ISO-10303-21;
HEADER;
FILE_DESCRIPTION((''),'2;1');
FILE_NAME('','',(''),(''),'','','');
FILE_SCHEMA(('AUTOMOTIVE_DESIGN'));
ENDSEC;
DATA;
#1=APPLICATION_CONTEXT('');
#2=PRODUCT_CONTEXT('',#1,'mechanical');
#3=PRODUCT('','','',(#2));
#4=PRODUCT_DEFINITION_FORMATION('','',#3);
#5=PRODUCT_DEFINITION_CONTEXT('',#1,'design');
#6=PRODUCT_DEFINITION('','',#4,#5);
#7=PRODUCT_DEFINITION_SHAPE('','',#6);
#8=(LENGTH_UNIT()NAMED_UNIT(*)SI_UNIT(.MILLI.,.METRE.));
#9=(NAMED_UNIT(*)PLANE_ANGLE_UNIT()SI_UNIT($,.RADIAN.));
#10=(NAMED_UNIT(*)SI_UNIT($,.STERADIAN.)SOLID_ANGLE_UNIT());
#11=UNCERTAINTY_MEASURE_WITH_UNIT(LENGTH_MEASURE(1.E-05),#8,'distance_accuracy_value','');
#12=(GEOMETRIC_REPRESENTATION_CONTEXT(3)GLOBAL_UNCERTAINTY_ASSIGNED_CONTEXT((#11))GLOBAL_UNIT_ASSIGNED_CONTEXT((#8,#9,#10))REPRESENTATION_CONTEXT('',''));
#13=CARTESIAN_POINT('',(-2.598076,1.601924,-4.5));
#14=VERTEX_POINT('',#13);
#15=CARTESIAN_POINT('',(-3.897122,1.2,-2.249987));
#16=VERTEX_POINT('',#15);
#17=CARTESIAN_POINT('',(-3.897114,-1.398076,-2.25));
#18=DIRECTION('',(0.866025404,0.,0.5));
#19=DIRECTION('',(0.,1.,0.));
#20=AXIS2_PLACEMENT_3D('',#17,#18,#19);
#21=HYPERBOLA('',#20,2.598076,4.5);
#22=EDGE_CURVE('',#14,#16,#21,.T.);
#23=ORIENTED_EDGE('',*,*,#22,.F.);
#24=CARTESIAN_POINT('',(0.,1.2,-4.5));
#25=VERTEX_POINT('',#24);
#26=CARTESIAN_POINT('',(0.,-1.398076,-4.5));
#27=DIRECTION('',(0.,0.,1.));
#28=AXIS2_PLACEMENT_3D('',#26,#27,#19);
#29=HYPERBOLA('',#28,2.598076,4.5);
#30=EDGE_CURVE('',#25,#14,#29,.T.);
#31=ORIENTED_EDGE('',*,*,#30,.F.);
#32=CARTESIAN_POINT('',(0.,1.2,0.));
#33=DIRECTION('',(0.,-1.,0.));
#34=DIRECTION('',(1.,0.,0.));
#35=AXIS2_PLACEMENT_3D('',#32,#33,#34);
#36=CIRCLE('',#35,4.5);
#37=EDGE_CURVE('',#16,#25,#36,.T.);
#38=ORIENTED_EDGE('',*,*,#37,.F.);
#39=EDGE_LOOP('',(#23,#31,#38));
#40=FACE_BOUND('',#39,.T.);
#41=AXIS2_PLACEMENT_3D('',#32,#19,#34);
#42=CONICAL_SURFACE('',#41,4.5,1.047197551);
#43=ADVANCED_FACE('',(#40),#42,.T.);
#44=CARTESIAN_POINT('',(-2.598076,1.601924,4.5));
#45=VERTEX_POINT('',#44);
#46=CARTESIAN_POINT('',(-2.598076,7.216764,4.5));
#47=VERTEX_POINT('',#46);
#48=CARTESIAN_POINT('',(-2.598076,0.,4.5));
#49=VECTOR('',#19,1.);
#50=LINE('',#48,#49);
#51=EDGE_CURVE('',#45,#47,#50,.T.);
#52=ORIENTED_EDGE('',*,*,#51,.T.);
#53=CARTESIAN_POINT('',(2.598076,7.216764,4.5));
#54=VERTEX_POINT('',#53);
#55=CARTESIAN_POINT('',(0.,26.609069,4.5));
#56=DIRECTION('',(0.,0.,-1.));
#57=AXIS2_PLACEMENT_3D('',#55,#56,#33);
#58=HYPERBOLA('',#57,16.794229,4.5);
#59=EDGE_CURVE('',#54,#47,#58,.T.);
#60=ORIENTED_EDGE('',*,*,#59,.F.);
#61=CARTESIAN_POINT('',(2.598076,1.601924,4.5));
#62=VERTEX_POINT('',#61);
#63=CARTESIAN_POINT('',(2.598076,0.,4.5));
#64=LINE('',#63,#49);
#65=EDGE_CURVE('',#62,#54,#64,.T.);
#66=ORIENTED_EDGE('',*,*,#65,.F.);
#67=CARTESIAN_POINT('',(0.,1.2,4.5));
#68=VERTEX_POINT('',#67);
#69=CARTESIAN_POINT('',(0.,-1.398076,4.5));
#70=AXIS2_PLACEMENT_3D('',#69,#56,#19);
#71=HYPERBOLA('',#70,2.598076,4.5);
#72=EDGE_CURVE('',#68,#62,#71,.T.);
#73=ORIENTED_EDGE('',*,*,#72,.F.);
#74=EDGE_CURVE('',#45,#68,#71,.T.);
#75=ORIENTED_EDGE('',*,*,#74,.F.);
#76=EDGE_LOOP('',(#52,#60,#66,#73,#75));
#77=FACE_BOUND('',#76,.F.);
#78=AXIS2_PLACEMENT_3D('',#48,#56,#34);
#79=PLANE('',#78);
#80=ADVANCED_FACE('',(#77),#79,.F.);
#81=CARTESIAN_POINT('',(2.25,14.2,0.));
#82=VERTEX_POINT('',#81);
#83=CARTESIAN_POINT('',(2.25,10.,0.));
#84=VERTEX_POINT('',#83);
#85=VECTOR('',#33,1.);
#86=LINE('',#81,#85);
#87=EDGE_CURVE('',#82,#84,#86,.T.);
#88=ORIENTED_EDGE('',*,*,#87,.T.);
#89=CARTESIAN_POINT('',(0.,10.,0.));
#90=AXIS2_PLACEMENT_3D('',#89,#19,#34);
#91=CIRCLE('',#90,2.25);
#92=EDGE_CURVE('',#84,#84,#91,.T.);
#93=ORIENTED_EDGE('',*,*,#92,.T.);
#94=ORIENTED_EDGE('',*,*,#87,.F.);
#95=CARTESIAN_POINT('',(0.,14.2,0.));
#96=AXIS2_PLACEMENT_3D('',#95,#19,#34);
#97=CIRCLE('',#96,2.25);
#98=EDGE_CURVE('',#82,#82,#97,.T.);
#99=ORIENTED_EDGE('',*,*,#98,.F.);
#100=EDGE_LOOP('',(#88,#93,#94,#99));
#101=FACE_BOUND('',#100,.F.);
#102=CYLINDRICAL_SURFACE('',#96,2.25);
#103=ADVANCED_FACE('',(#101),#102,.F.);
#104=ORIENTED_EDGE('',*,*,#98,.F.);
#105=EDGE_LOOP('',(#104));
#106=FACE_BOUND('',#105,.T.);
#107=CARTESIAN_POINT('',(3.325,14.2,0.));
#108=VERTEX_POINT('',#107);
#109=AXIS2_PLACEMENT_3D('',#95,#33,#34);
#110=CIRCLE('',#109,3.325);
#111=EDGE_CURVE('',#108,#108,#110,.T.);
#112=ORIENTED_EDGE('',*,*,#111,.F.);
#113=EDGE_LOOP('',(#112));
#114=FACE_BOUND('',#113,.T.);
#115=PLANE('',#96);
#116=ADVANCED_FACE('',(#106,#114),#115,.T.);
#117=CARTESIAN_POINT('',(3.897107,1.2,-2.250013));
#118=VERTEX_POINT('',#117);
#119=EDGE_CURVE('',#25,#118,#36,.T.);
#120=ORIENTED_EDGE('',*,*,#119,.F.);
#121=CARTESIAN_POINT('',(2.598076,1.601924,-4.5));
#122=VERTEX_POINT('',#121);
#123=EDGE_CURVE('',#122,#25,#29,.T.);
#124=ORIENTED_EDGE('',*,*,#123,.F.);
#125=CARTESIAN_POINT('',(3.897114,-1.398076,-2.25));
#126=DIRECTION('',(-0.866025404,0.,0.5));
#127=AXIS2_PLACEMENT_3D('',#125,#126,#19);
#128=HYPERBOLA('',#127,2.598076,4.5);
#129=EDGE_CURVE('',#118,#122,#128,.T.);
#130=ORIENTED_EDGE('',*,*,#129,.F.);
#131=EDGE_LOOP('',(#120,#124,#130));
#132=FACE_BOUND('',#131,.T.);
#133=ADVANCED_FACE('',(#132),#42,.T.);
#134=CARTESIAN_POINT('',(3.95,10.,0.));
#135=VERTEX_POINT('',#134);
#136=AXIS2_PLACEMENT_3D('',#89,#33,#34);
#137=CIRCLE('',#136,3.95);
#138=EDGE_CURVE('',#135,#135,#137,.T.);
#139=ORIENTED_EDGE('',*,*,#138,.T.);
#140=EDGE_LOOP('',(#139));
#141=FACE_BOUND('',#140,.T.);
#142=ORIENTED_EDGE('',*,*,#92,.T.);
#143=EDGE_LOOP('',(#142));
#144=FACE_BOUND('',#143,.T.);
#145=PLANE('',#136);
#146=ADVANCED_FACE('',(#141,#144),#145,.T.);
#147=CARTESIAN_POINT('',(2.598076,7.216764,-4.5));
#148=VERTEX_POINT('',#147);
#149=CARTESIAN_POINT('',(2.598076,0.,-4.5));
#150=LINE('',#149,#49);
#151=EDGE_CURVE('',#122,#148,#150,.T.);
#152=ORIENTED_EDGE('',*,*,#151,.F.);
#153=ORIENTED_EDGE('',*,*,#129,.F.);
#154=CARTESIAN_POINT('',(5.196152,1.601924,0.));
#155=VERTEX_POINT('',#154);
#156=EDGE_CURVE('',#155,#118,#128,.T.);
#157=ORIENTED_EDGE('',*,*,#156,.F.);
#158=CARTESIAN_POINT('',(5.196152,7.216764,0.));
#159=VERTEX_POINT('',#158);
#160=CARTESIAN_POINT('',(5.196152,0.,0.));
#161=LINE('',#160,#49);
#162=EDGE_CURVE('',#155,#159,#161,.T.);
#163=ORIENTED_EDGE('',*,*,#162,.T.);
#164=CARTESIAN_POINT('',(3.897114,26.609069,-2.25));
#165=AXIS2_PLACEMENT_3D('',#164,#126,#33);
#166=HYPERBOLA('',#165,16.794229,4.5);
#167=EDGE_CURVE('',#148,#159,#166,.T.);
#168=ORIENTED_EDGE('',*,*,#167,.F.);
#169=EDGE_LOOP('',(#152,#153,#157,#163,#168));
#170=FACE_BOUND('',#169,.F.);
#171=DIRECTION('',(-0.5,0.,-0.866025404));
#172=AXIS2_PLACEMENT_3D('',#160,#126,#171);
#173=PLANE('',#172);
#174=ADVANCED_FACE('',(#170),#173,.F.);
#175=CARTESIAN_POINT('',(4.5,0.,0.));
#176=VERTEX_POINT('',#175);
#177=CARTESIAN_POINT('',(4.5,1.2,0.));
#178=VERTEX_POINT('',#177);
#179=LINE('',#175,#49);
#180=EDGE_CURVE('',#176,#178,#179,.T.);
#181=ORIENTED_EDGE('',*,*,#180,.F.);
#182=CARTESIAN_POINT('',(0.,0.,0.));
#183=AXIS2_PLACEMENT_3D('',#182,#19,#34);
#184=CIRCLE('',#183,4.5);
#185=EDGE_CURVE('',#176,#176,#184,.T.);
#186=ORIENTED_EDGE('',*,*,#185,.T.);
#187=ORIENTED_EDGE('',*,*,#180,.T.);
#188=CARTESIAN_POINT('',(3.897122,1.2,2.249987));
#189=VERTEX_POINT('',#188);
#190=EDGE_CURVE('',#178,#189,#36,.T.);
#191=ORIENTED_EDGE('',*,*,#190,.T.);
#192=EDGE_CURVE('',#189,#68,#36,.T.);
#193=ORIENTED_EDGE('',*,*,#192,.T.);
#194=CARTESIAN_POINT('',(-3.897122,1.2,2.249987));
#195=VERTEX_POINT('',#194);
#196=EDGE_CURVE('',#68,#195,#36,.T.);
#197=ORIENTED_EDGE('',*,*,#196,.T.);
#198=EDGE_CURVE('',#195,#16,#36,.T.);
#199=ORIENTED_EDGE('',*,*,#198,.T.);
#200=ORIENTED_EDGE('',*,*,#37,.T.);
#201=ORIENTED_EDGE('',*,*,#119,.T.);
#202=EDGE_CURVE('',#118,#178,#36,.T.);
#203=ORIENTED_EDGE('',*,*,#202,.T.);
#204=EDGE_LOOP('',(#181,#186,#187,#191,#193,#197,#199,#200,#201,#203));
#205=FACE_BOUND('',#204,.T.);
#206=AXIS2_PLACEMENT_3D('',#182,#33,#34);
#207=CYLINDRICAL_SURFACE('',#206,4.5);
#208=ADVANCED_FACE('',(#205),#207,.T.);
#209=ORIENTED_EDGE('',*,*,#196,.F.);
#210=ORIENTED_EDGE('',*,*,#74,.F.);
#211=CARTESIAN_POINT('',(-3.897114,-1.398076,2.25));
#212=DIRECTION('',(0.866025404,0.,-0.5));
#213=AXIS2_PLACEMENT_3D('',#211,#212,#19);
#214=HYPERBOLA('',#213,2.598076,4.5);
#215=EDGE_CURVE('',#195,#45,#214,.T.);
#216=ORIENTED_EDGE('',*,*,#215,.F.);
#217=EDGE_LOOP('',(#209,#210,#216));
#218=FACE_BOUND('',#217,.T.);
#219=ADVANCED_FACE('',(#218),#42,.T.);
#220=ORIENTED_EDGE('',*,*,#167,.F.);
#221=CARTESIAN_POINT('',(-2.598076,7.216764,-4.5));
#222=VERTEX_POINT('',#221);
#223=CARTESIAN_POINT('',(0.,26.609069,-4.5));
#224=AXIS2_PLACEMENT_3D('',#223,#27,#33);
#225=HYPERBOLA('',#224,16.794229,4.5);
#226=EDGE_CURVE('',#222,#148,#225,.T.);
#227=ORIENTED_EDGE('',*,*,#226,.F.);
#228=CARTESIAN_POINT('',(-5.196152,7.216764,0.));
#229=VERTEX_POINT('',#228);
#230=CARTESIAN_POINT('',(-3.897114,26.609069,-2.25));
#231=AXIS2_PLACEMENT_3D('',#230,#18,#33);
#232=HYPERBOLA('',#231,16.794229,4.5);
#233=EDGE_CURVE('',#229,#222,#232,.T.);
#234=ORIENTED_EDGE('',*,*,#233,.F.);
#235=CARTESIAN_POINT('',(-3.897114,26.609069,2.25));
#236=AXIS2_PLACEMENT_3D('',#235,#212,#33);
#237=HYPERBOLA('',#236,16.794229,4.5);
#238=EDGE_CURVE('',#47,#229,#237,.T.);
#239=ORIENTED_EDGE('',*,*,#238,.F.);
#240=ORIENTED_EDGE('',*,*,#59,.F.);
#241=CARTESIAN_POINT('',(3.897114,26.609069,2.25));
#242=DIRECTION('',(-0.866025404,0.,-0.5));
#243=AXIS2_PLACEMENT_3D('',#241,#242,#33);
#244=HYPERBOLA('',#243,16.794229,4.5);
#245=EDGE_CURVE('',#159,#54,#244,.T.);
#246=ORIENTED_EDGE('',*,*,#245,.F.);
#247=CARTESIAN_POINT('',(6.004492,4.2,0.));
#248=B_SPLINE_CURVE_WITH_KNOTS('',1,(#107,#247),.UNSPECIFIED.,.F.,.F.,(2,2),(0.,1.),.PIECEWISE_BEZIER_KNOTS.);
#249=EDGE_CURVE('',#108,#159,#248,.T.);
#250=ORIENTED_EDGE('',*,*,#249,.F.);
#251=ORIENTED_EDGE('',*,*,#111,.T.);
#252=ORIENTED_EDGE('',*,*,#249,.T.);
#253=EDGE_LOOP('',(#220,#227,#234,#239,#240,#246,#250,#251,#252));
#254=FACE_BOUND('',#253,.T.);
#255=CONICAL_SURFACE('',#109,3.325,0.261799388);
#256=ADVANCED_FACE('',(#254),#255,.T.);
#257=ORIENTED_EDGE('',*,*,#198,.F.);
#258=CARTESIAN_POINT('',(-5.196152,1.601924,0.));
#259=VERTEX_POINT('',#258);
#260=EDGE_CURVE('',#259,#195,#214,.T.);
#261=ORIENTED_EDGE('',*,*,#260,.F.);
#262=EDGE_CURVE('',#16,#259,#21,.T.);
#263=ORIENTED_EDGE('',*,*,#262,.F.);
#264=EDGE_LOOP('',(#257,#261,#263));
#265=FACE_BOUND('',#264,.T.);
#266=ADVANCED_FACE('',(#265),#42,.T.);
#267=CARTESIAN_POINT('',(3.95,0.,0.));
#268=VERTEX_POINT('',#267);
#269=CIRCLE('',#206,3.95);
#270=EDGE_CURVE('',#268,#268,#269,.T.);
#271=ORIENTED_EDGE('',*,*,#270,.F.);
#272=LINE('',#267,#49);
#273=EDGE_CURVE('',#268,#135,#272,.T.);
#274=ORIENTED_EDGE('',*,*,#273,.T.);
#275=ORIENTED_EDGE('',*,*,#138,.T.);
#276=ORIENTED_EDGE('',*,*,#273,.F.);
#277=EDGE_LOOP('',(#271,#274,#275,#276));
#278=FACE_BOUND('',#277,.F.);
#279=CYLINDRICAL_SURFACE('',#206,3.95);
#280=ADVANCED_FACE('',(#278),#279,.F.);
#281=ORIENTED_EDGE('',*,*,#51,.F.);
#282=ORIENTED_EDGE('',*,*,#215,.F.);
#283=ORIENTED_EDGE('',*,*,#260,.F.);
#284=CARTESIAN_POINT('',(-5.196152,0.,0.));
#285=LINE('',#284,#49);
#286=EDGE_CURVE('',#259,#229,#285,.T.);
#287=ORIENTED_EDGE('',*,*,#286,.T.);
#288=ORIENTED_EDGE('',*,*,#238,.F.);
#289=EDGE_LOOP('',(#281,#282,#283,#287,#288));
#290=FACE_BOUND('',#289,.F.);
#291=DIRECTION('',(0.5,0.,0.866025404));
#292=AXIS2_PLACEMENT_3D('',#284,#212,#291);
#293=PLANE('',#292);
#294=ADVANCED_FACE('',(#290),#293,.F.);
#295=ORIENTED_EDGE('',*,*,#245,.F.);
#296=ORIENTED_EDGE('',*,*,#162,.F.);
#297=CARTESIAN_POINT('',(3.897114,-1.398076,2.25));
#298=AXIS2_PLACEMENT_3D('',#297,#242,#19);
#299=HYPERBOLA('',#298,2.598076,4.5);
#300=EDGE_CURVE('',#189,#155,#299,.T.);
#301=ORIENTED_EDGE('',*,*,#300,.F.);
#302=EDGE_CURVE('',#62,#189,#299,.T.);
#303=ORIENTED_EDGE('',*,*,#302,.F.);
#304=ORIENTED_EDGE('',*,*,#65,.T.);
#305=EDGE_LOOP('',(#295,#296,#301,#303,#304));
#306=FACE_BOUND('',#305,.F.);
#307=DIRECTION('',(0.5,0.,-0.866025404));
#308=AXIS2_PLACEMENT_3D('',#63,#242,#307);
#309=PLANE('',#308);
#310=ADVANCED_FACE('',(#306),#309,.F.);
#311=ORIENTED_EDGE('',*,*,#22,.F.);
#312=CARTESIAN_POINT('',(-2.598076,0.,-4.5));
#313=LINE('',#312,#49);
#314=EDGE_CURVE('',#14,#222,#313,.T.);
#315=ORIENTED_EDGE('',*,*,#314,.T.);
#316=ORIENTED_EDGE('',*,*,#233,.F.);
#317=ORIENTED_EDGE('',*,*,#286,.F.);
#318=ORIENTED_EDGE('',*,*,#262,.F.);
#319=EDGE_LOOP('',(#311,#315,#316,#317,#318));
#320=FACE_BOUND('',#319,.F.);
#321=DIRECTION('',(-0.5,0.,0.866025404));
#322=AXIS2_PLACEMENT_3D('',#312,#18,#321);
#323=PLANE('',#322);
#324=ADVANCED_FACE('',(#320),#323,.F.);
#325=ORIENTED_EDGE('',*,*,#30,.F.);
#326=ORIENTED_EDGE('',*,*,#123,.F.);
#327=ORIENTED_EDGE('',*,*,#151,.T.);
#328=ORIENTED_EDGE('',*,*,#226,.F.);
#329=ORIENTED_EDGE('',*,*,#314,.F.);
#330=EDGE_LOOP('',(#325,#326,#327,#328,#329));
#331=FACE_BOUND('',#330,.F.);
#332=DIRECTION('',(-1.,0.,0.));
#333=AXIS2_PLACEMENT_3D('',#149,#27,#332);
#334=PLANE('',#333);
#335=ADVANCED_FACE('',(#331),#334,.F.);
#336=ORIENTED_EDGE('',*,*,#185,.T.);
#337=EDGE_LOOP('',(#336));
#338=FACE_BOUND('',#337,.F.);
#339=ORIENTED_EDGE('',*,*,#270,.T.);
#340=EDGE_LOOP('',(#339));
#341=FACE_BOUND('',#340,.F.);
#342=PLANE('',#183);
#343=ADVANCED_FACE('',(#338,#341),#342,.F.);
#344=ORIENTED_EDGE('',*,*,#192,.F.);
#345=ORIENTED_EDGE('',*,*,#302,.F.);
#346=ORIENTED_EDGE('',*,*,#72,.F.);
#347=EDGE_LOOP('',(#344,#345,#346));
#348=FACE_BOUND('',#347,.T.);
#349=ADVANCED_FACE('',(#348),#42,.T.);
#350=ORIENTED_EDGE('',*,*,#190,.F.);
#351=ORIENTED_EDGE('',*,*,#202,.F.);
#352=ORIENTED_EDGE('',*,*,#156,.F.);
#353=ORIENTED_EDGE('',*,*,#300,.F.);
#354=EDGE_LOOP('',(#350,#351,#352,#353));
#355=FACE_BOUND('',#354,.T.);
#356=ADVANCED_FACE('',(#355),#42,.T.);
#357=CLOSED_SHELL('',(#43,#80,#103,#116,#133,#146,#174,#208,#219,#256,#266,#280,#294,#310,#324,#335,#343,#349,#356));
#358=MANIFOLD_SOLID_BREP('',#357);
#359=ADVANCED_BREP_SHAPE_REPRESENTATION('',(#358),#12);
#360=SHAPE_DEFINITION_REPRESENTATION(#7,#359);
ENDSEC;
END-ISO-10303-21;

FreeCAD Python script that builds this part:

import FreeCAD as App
import Part
import Sketcher

V = App.Vector
Q = App.Units.Quantity


def add_polygon(sketch, points):
    """Adds a closed chain of lines whose ends are joined by coincident constraints."""
    first, n = sketch.GeometryCount, len(points)
    for a, b in zip(points, points[1:] + points[:1]):
        sketch.addGeometry(Part.LineSegment(App.Vector(*a, 0), App.Vector(*b, 0)), False)
    for i in range(n):
        sketch.addConstraint(Sketcher.Constraint("Coincident", first + i, 2, first + (i + 1) % n, 1))

doc = App.newDocument("Part")
body = doc.addObject("PartDesign::Body", "Body")

# Sketch on XZ plane
sketch1 = body.newObject("Sketcher::SketchObject", "Sketch")
sketch1.AttachmentSupport = (doc.getObject("XZ_Plane"), [""])
sketch1.MapMode = "FlatFace"
add_polygon(sketch1, [(-3, 4), (3, 4), (5, 0), (3, -4), (-3, -4), (-5, 0)])  # lines 0-5
sketch1.addConstraint([
    Sketcher.Constraint("Horizontal", 0),
    Sketcher.Constraint("Horizontal", 3),
    Sketcher.Constraint("Symmetric", 0, 2, 3, 2, -1, 1),
    Sketcher.Constraint("Symmetric", 1, 2, 4, 2, -1, 1),
    Sketcher.Constraint("PointOnObject", 1, 2, -1),
    Sketcher.Constraint("Parallel", 2, 5),
    Sketcher.Constraint("Vertical", 0, 2, 2, 2),
    Sketcher.Constraint("Angle", 1, Q("-60 deg")),
    Sketcher.Constraint("DistanceY", 2, 2, 0, 2, Q("9 mm")),
    Sketcher.Constraint("DistanceX", 0, 1, 0, 2, Q("5.196152 mm")),
])
pad1 = body.newObject("PartDesign::Pad", "Pad")
pad1.Profile = sketch1
pad1.Length = 14.2
pad1.Reversed = True

# Sketch on XZ plane
sketch2 = body.newObject("Sketcher::SketchObject", "Sketch001")
sketch2.AttachmentSupport = (doc.getObject("XZ_Plane"), [""])
sketch2.MapMode = "FlatFace"
sketch2.AttachmentOffset = App.Placement(V(0, 0, -14.2), App.Rotation())
sketch2.addGeometry(Part.Circle(V(0, 0, 0), V(0, 0, 1), 2.2), False)
sketch2.addConstraint([
    Sketcher.Constraint("Coincident", 0, 3, -1, 1),
    Sketcher.Constraint("Diameter", 0, Q("4.5 mm")),
])
pocket1 = body.newObject("PartDesign::Pocket", "Pocket")
pocket1.Profile = sketch2
pocket1.Type = "ThroughAll"
pocket1.Reversed = True

# Sketch on XZ plane
sketch3 = body.newObject("Sketcher::SketchObject", "Sketch002")
sketch3.AttachmentSupport = (doc.getObject("XZ_Plane"), [""])
sketch3.MapMode = "FlatFace"
sketch3.addGeometry(Part.Circle(V(0, 0, 0), V(0, 0, 1), 4), False)
sketch3.addConstraint([
    Sketcher.Constraint("Coincident", 0, 3, -1, 1),
    Sketcher.Constraint("Diameter", 0, Q("7.9 mm")),
])
pocket2 = body.newObject("PartDesign::Pocket", "Pocket001")
pocket2.Profile = sketch3
pocket2.Length = 10

# Sketch on XZ plane
sketch4 = body.newObject("Sketcher::SketchObject", "Sketch003")
sketch4.AttachmentSupport = (doc.getObject("XZ_Plane"), [""])
sketch4.MapMode = "FlatFace"
sketch4.AttachmentOffset = App.Placement(V(0, 0, -14.2), App.Rotation())
add_polygon(sketch4, [(-10.9, -10.2), (-10.9, 10.2), (10.9, 10.2), (10.9, -10.2)])  # lines 0-3
sketch4.addGeometry(Part.Circle(V(0, 0, 0), V(0, 0, 1), 3.3), False)  # 4
sketch4.addConstraint([
    Sketcher.Constraint("Vertical", 0),
    Sketcher.Constraint("Horizontal", 1),
    Sketcher.Constraint("Vertical", 2),
    Sketcher.Constraint("Horizontal", 3),
    Sketcher.Constraint("Coincident", 4, 3, -1, 1),
    Sketcher.Constraint("Symmetric", 0, 2, 2, 2, -1, 1),
    Sketcher.Constraint("Diameter", 4, Q("6.65 mm")),
    Sketcher.Constraint("DistanceX", 1, 1, 1, 2, Q("21.704 mm")),
    Sketcher.Constraint("DistanceY", 0, 1, 0, 2, Q("20.312 mm")),
])
pocket3 = body.newObject("PartDesign::Pocket", "Pocket002")
pocket3.Profile = sketch4
pocket3.Length = 10
pocket3.Reversed = True
pocket3.TaperAngle = 15

# Sketch on XZ plane
sketch5 = body.newObject("Sketcher::SketchObject", "Sketch004")
sketch5.AttachmentSupport = (doc.getObject("XZ_Plane"), [""])
sketch5.MapMode = "FlatFace"
add_polygon(sketch5, [(-8.2, 7.5), (-8.2, -7.5), (8.2, -7.5), (8.2, 7.5)])  # lines 0-3
sketch5.addGeometry(Part.Circle(V(0, 0, 0), V(0, 0, 1), 4.5), False)  # 4
sketch5.addConstraint([
    Sketcher.Constraint("Vertical", 0),
    Sketcher.Constraint("Horizontal", 1),
    Sketcher.Constraint("Vertical", 2),
    Sketcher.Constraint("Horizontal", 3),
    Sketcher.Constraint("Coincident", 4, 3, -1, 1),
    Sketcher.Constraint("Symmetric", 0, 2, 2, 2, -1, 1),
    Sketcher.Constraint("Diameter", 4, Q("9 mm")),
    Sketcher.Constraint("DistanceX", 1, 1, 1, 2, Q("16.344 mm")),
    Sketcher.Constraint("DistanceY", 0, 2, 0, 1, Q("14.952 mm")),
])
pocket4 = body.newObject("PartDesign::Pocket", "Pocket003")
pocket4.Profile = sketch5
pocket4.Length = 1.2

# Sketch on XZ plane
sketch6 = body.newObject("Sketcher::SketchObject", "Sketch005")
sketch6.AttachmentSupport = (doc.getObject("XZ_Plane"), [""])
sketch6.MapMode = "FlatFace"
sketch6.AttachmentOffset = App.Placement(V(0, 0, -1.2), App.Rotation())
add_polygon(sketch6, [(-25.5, 24.8), (-25.5, -24.8), (25.5, -24.8), (25.5, 24.8)])  # lines 0-3
sketch6.addGeometry(Part.Circle(V(0, 0, 0), V(0, 0, 1), 4.5), False)  # 4
sketch6.addConstraint([
    Sketcher.Constraint("Vertical", 0),
    Sketcher.Constraint("Horizontal", 1),
    Sketcher.Constraint("Vertical", 2),
    Sketcher.Constraint("Horizontal", 3),
    Sketcher.Constraint("Coincident", 4, 3, -1, 1),
    Sketcher.Constraint("Symmetric", 0, 2, 2, 2, -1, 1),
    Sketcher.Constraint("Diameter", 4, Q("9 mm")),
    Sketcher.Constraint("DistanceX", 1, 1, 1, 2, Q("50.986 mm")),
    Sketcher.Constraint("DistanceY", 0, 2, 0, 1, Q("49.594 mm")),
])
pocket5 = body.newObject("PartDesign::Pocket", "Pocket004")
pocket5.Profile = sketch6
pocket5.Length = 10
pocket5.TaperAngle = 60

doc.recompute()
